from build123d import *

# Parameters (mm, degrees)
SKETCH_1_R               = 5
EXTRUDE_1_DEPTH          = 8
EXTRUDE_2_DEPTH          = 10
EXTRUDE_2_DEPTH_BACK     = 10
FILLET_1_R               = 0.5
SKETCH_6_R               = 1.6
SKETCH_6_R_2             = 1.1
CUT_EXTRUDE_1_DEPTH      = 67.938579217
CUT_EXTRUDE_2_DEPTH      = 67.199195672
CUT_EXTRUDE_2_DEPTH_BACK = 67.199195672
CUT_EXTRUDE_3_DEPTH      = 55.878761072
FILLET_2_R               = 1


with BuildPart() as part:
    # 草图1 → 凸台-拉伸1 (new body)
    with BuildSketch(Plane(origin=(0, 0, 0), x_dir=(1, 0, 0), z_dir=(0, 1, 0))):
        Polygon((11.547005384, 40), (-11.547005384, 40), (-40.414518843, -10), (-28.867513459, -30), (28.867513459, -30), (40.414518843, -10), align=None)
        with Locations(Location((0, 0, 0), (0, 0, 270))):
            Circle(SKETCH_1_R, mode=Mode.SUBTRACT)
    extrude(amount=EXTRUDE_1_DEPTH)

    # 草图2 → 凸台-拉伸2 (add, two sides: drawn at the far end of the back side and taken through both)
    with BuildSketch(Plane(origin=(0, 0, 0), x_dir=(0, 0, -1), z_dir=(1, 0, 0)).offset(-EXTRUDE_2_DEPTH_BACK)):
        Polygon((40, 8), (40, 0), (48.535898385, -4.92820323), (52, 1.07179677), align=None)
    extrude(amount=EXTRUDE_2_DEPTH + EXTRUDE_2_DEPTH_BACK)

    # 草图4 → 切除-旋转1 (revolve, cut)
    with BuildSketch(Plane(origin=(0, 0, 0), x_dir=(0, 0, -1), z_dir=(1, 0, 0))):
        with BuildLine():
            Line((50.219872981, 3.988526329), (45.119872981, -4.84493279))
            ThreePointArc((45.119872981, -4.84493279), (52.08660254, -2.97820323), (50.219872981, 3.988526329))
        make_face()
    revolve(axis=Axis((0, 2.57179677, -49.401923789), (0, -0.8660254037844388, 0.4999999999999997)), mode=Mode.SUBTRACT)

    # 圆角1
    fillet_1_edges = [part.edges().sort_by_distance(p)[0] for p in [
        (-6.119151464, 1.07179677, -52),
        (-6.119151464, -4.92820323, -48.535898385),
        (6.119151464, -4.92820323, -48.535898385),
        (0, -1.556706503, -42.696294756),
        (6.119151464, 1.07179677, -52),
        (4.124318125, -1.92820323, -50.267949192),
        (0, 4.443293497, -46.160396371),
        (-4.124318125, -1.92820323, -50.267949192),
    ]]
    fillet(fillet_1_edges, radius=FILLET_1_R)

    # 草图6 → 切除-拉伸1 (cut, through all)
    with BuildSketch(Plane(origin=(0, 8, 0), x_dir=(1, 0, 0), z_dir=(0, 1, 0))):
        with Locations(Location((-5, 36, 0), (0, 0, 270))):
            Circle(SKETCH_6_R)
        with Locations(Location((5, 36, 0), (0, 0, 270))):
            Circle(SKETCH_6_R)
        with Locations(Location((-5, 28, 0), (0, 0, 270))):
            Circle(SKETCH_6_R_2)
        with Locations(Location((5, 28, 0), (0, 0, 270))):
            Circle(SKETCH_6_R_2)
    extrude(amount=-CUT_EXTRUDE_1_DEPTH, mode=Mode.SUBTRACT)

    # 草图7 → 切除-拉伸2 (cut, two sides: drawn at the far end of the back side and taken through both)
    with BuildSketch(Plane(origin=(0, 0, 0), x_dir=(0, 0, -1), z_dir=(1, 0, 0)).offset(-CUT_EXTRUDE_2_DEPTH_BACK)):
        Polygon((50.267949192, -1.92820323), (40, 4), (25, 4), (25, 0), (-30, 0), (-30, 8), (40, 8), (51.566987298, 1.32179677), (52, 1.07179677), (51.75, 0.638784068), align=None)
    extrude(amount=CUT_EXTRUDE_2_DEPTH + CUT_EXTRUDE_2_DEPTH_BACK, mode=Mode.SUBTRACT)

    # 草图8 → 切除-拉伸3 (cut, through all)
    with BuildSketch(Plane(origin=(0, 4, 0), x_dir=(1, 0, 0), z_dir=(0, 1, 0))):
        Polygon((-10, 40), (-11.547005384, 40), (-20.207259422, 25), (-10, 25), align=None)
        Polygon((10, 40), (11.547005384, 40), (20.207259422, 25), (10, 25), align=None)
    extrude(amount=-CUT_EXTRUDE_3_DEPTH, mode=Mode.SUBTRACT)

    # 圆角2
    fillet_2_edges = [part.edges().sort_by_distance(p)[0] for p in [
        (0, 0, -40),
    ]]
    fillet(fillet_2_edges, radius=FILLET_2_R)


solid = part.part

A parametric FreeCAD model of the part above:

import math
import FreeCAD as App
import Part
import Sketcher
from FreeCAD import Vector
Q = App.Units.Quantity


def edges_at(feature, points):
    """Names of the edges that pass closest to the given points."""
    edges = feature.Shape.Edges
    near = lambda p: min(range(len(edges)), key=lambda i: edges[i].distToShape(Part.Vertex(*p))[0])
    return sorted({f"Edge{near(p) + 1}" for p in points})

doc = App.newDocument("Part")
body = doc.addObject("PartDesign::Body", "Body")

sketch1 = body.newObject("Sketcher::SketchObject", "Sketch")
sketch1.AttachmentSupport = (doc.getObject("XZ_Plane"), [""])
sketch1.MapMode = "FlatFace"
sketch1.addGeometry([
    Part.LineSegment(Vector(12, -40, 0), Vector(-12, -40, 0)),
    Part.LineSegment(Vector(-12, -40, 0), Vector(-40, 10, 0)),
    Part.LineSegment(Vector(-40, 10, 0), Vector(-29, 30, 0)),
    Part.LineSegment(Vector(-29, 30, 0), Vector(29, 30, 0)),
    Part.LineSegment(Vector(29, 30, 0), Vector(40, 10, 0)),
    Part.LineSegment(Vector(40, 10, 0), Vector(12, -40, 0)),
    Part.Circle(Vector(0, 0, 0), Vector(0, 0, 1), 5),
], False)
sketch1.addConstraint([
    Sketcher.Constraint("Coincident", 0, 2, 1, 1),
    Sketcher.Constraint("Coincident", 1, 2, 2, 1),
    Sketcher.Constraint("Coincident", 2, 2, 3, 1),
    Sketcher.Constraint("Coincident", 3, 2, 4, 1),
    Sketcher.Constraint("Coincident", 4, 2, 5, 1),
    Sketcher.Constraint("Coincident", 5, 2, 0, 1),
    Sketcher.Constraint("Horizontal", 0),
    Sketcher.Constraint("Horizontal", 3),
    Sketcher.Constraint("Coincident", 6, 3, -1, 1),
    Sketcher.Constraint("Symmetric", 1, 2, 4, 2, -2),
    Sketcher.Constraint("Parallel", 1, 4),
    Sketcher.Constraint("Parallel", 2, 5),
    Sketcher.Constraint("Equal", 2, 4),
    Sketcher.Constraint("Diameter", 6, Q("10 mm")),
    Sketcher.Constraint("Angle", 1, Q("120 deg")),
    Sketcher.Constraint("DistanceY", 0, 2, -1, 1, Q("40 mm")),
    Sketcher.Constraint("DistanceY", -1, 1, 1, 2, Q("10 mm")),
    Sketcher.Constraint("DistanceY", -1, 1, 2, 2, Q("30 mm")),
    Sketcher.Constraint("DistanceX", 0, 2, 0, 1, Q("23.094011 mm")),
])
pad1 = body.newObject("PartDesign::Pad", "Pad")
pad1.Profile = sketch1
pad1.Length = 8
pad1.Reversed = True

sketch2 = body.newObject("Sketcher::SketchObject", "Sketch001")
sketch2.AttachmentSupport = (doc.getObject("YZ_Plane"), [""])
sketch2.MapMode = "FlatFace"
sketch2.addGeometry([
    Part.LineSegment(Vector(8, -40, 0), Vector(0, -40, 0)),
    Part.LineSegment(Vector(0, -40, 0), Vector(-5, -49, 0)),
    Part.LineSegment(Vector(-5, -49, 0), Vector(1, -52, 0)),
    Part.LineSegment(Vector(1, -52, 0), Vector(8, -40, 0)),
], False)
sketch2.addConstraint([
    Sketcher.Constraint("Coincident", 0, 2, 1, 1),
    Sketcher.Constraint("Coincident", 1, 2, 2, 1),
    Sketcher.Constraint("Coincident", 2, 2, 3, 1),
    Sketcher.Constraint("Coincident", 3, 2, 0, 1),
    Sketcher.Constraint("Horizontal", 0),
    Sketcher.Constraint("PointOnObject", 0, 2, -2),
    Sketcher.Constraint("Perpendicular", 1, 2),
    Sketcher.Constraint("Perpendicular", 2, 3),
    Sketcher.Constraint("DistanceX", 0, 2, 0, 1, Q("8 mm")),
    Sketcher.Constraint("Angle", 1, Q("-120 deg")),
    Sketcher.Constraint("DistanceY", 0, 2, -1, 1, Q("40 mm")),
    Sketcher.Constraint("DistanceY", 2, 2, -1, 1, Q("52 mm")),
])
pad2 = body.newObject("PartDesign::Pad", "Pad001")
pad2.Profile = sketch2
pad2.Type = "TwoLengths"
pad2.Length = 10
pad2.Length2 = 10

sketch3 = body.newObject("Sketcher::SketchObject", "Sketch002")
sketch3.AttachmentSupport = (doc.getObject("YZ_Plane"), [""])
sketch3.MapMode = "FlatFace"
sketch3.addGeometry([
    Part.LineSegment(Vector(4, -50, 0), Vector(-5, -45, 0)),
    Part.ArcOfCircle(Part.Circle(Vector(0, -48, 0), Vector(0, 0, 1), 5), math.radians(150), math.radians(330)),
], False)
sketch3.addGeometry(Part.LineSegment(Vector(4, -50, 0), Vector(-5, -45, 0)), True)
sketch3.addConstraint([
    Sketcher.Constraint("Coincident", 0, 1, 1, 2),
    Sketcher.Constraint("Coincident", 1, 1, 0, 2),
    Sketcher.Constraint("Coincident", 2, 1, 0, 1),
    Sketcher.Constraint("Coincident", 2, 2, 1, 1),
    Sketcher.Constraint("Radius", 1, Q("5.1 mm")),
    Sketcher.Constraint("Angle", 0, Q("150 deg")),
    Sketcher.Constraint("DistanceY", 0, 1, 1, 3, Q("2.55 mm")),
    Sketcher.Constraint("DistanceX", 1, 3, -1, 1, Q("0.428203 mm")),
    Sketcher.Constraint("DistanceY", 1, 3, -1, 1, Q("47.669873 mm")),
])
groove = body.newObject("PartDesign::Groove", "Groove")
groove.Profile = sketch3
groove.ReferenceAxis = (sketch3, ["Axis0"])
groove.Angle = 360
doc.recompute()

fillet = body.newObject("PartDesign::Fillet", "Fillet")
fillet.Base = (groove, edges_at(groove, [
    (-6.119, 1.072, -52),
    (-6.119, -4.928, -48.536),
    (6.119, -4.928, -48.536),
    (0, -1.557, -42.696),
    (6.119, 1.072, -52),
    (4.124, -1.928, -50.268),
    (0, 4.443, -46.16),
    (-4.124, -1.928, -50.268),
]))
fillet.Radius = 0.5

sketch4 = body.newObject("Sketcher::SketchObject", "Sketch003")
sketch4.AttachmentSupport = (doc.getObject("XZ_Plane"), [""])
sketch4.MapMode = "FlatFace"
sketch4.AttachmentOffset = App.Placement(Vector(0, 0, -8), App.Rotation())
sketch4.addGeometry([
    Part.Circle(Vector(-5, -36, 0), Vector(0, 0, 1), 1.6),
    Part.Circle(Vector(5, -36, 0), Vector(0, 0, 1), 1.6),
    Part.Circle(Vector(-5, -28, 0), Vector(0, 0, 1), 1.1),
    Part.Circle(Vector(5, -28, 0), Vector(0, 0, 1), 1.1),
], False)
sketch4.addConstraint([
    Sketcher.Constraint("Equal", 0, 1),
    Sketcher.Constraint("Equal", 2, 3),
    Sketcher.Constraint("Symmetric", 0, 3, 1, 3, -2),
    Sketcher.Constraint("Symmetric", 2, 3, 3, 3, -2),
    Sketcher.Constraint("Vertical", 0, 3, 2, 3),
    Sketcher.Constraint("Diameter", 0, Q("3.2 mm")),
    Sketcher.Constraint("Diameter", 2, Q("2.2 mm")),
    Sketcher.Constraint("DistanceX", 0, 3, -1, 1, Q("5 mm")),
    Sketcher.Constraint("DistanceY", 0, 3, -1, 1, Q("36 mm")),
    Sketcher.Constraint("DistanceY", 2, 3, -1, 1, Q("28 mm")),
])
pocket1 = body.newObject("PartDesign::Pocket", "Pocket")
pocket1.Profile = sketch4
pocket1.Type = "ThroughAll"
pocket1.Reversed = True

sketch5 = body.newObject("Sketcher::SketchObject", "Sketch004")
sketch5.AttachmentSupport = (doc.getObject("YZ_Plane"), [""])
sketch5.MapMode = "FlatFace"
sketch5.addGeometry([
    Part.LineSegment(Vector(4, -40, 0), Vector(-1.9, -50.3, 0)),
    Part.LineSegment(Vector(-1.9, -50.3, 0), Vector(0.6, -51.8, 0)),
    Part.LineSegment(Vector(0.6, -51.8, 0), Vector(1.1, -52, 0)),
    Part.LineSegment(Vector(1.1, -52, 0), Vector(1.3, -51.6, 0)),
    Part.LineSegment(Vector(1.3, -51.6, 0), Vector(8, -40, 0)),
    Part.LineSegment(Vector(8, -40, 0), Vector(8, 30, 0)),
    Part.LineSegment(Vector(8, 30, 0), Vector(0, 30, 0)),
    Part.LineSegment(Vector(0, 30, 0), Vector(0, -25, 0)),
    Part.LineSegment(Vector(0, -25, 0), Vector(4, -25, 0)),
    Part.LineSegment(Vector(4, -25, 0), Vector(4, -40, 0)),
], False)
sketch5.addConstraint([
    Sketcher.Constraint("Coincident", 0, 2, 1, 1),
    Sketcher.Constraint("Coincident", 1, 2, 2, 1),
    Sketcher.Constraint("Coincident", 2, 2, 3, 1),
    Sketcher.Constraint("Coincident", 3, 2, 4, 1),
    Sketcher.Constraint("Coincident", 4, 2, 5, 1),
    Sketcher.Constraint("Coincident", 5, 2, 6, 1),
    Sketcher.Constraint("Coincident", 6, 2, 7, 1),
    Sketcher.Constraint("Coincident", 7, 2, 8, 1),
    Sketcher.Constraint("Coincident", 8, 2, 9, 1),
    Sketcher.Constraint("Coincident", 9, 2, 0, 1),
    Sketcher.Constraint("Vertical", 5),
    Sketcher.Constraint("Horizontal", 6),
    Sketcher.Constraint("Vertical", 7),
    Sketcher.Constraint("Horizontal", 8),
    Sketcher.Constraint("Vertical", 9),
    Sketcher.Constraint("PointOnObject", 6, 2, -2),
    Sketcher.Constraint("Perpendicular", 0, 1),
    Sketcher.Constraint("Parallel", 1, 2),
    Sketcher.Constraint("Perpendicular", 2, 3),
    Sketcher.Constraint("Parallel", 3, 4),
    Sketcher.Constraint("Horizontal", 4, 2, 9, 2),
    Sketcher.Constraint("Equal", 2, 3),
    Sketcher.Constraint("DistanceX", 6, 2, 6, 1, Q("8 mm")),
    Sketcher.Constraint("DistanceX", 8, 1, 8, 2, Q("4 mm")),
    Sketcher.Constraint("DistanceY", 5, 1, 5, 2, Q("70 mm")),
    Sketcher.Constraint("DistanceY", 7, 2, 7, 1, Q("55 mm")),
    Sketcher.Constraint("Angle", 0, Q("-120 deg")),
    Sketcher.Constraint("DistanceY", 2, 2, -1, 1, Q("52 mm")),
    Sketcher.Constraint("DistanceY", 4, 2, -1, 1, Q("40 mm")),
    Sketcher.Constraint("Distance", 2, Q("0.5 mm")),
])
pocket2 = body.newObject("PartDesign::Pocket", "Pocket001")
pocket2.Profile = sketch5
pocket2.Type = "ThroughAll"
pocket2.Midplane = True

sketch6 = body.newObject("Sketcher::SketchObject", "Sketch005")
sketch6.AttachmentSupport = (doc.getObject("XZ_Plane"), [""])
sketch6.MapMode = "FlatFace"
sketch6.AttachmentOffset = App.Placement(Vector(0, 0, -4), App.Rotation())
sketch6.addGeometry([
    Part.LineSegment(Vector(-10, -40, 0), Vector(-11.5, -40, 0)),
    Part.LineSegment(Vector(-11.5, -40, 0), Vector(-20.2, -25, 0)),
    Part.LineSegment(Vector(-20.2, -25, 0), Vector(-10, -25, 0)),
    Part.LineSegment(Vector(-10, -25, 0), Vector(-10, -40, 0)),
    Part.LineSegment(Vector(11.5, -40, 0), Vector(10, -40, 0)),
    Part.LineSegment(Vector(10, -40, 0), Vector(10, -25, 0)),
    Part.LineSegment(Vector(10, -25, 0), Vector(20.2, -25, 0)),
    Part.LineSegment(Vector(20.2, -25, 0), Vector(11.5, -40, 0)),
], False)
sketch6.addConstraint([
    Sketcher.Constraint("Coincident", 0, 2, 1, 1),
    Sketcher.Constraint("Coincident", 1, 2, 2, 1),
    Sketcher.Constraint("Coincident", 2, 2, 3, 1),
    Sketcher.Constraint("Coincident", 3, 2, 0, 1),
    Sketcher.Constraint("Coincident", 4, 2, 5, 1),
    Sketcher.Constraint("Coincident", 5, 2, 6, 1),
    Sketcher.Constraint("Coincident", 6, 2, 7, 1),
    Sketcher.Constraint("Coincident", 7, 2, 4, 1),
    Sketcher.Constraint("Horizontal", 0),
    Sketcher.Constraint("Horizontal", 2),
    Sketcher.Constraint("Vertical", 3),
    Sketcher.Constraint("Horizontal", 4),
    Sketcher.Constraint("Vertical", 5),
    Sketcher.Constraint("Horizontal", 6),
    Sketcher.Constraint("Symmetric", 3, 2, 4, 2, -2),
    Sketcher.Constraint("Symmetric", 1, 2, 6, 2, -2),
    Sketcher.Constraint("Equal", 0, 4),
    Sketcher.Constraint("DistanceY", 3, 2, 3, 1, Q("15 mm")),
    Sketcher.Constraint("Angle", 1, Q("120 deg")),
    Sketcher.Constraint("DistanceY", 0, 2, -1, 1, Q("40 mm")),
    Sketcher.Constraint("DistanceX", 2, 2, -1, 1, Q("10 mm")),
    Sketcher.Constraint("DistanceX", 2, 1, 2, 2, Q("10.207259 mm")),
])
pocket3 = body.newObject("PartDesign::Pocket", "Pocket002")
pocket3.Profile = sketch6
pocket3.Type = "ThroughAll"
pocket3.Reversed = True
doc.recompute()

fillet2 = body.newObject("PartDesign::Fillet", "Fillet001")
fillet2.Base = (pocket3, edges_at(pocket3, [(0, 0, -40)]))
fillet2.Radius = 1

doc.recompute()
